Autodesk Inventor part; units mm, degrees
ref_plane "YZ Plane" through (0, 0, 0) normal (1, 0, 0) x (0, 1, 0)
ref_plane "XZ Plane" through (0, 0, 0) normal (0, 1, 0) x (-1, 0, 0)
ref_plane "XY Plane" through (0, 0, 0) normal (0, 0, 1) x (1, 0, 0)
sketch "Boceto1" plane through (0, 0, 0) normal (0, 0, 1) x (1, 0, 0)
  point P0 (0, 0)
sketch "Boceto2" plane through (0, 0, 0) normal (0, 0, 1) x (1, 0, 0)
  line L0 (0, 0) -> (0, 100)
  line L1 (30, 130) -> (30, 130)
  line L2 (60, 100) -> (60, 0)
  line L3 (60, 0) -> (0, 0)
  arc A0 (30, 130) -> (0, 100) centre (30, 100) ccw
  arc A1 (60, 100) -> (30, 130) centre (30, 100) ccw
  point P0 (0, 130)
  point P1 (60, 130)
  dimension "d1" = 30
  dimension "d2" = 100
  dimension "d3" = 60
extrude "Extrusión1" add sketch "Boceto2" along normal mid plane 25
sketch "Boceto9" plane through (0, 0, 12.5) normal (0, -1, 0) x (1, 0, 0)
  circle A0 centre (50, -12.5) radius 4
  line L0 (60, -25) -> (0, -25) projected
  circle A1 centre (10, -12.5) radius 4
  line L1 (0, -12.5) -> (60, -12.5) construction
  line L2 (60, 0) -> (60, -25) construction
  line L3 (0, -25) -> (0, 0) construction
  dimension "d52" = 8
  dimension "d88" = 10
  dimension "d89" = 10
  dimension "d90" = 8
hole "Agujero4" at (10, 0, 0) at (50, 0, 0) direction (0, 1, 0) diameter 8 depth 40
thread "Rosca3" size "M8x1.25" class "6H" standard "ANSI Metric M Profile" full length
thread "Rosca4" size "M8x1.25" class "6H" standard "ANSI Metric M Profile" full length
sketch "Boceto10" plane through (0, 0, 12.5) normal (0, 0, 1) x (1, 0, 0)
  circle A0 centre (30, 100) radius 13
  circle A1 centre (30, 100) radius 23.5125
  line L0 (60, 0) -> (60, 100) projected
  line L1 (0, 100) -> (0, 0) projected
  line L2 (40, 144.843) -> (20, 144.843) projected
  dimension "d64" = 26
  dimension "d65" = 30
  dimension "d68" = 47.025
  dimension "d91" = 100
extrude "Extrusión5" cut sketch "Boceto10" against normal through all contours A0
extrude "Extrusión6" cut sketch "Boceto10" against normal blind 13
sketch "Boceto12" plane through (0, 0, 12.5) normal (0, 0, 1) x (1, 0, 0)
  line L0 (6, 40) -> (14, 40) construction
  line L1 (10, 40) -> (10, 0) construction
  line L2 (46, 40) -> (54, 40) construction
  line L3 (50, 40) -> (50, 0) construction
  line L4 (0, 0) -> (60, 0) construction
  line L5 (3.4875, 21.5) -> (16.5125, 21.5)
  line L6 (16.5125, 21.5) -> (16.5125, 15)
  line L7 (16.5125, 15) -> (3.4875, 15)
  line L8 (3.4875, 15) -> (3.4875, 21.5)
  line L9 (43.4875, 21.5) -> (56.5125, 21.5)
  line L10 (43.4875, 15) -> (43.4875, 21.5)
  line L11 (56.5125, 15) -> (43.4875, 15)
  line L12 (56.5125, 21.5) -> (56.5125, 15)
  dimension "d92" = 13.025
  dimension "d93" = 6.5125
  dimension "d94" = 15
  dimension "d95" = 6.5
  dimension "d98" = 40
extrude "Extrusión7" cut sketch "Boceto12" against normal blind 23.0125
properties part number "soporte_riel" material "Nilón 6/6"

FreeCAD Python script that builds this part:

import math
import FreeCAD as App
import Part
import Sketcher

V = App.Vector


def add_polygon(sketch, points):
    """Adds a closed chain of lines whose ends are joined by coincident constraints."""
    first, n = sketch.GeometryCount, len(points)
    for a, b in zip(points, points[1:] + points[:1]):
        sketch.addGeometry(Part.LineSegment(App.Vector(*a, 0), App.Vector(*b, 0)), False)
    for i in range(n):
        sketch.addConstraint(Sketcher.Constraint("Coincident", first + i, 2, first + (i + 1) % n, 1))

doc = App.newDocument("Part")
params = doc.addObject("Spreadsheet::Sheet", "Params")
for row, (alias, value) in enumerate([
    ("sketch1_radius", "30 mm"),
    ("sketch1_height", "100 mm"),
    ("pad1_length", "25 mm"),
    ("sketch2_diameter", "8 mm"),
    ("hole_diameter", "8 mm"),
    ("hole_depth", "40 mm"),
    ("sketch3_diameter", "26 mm"),
    ("sketch4_diameter", "26 mm"),
    ("pocket2_length", "13 mm"),
    ("sketch5_height", "6.5 mm"),
    ("pocket3_length", "23.0125 mm"),
], start=1):
    params.set(f"A{row}", alias)
    params.set(f"B{row}", "=" + value)
    params.setAlias(f"B{row}", alias)

body = doc.addObject("PartDesign::Body", "Body")

# Sketch on XY plane
sketch1 = body.newObject("Sketcher::SketchObject", "Sketch")
sketch1.AttachmentSupport = (doc.getObject("XY_Plane"), [""])
sketch1.MapMode = "FlatFace"
sketch1.addGeometry(Part.LineSegment(V(0, 100, 0), V(0, 0, 0)), False)
sketch1.addGeometry(Part.LineSegment(V(0, 0, 0), V(60, 0, 0)), False)
sketch1.addGeometry(Part.LineSegment(V(60, 0, 0), V(60, 100, 0)), False)
sketch1.addGeometry(Part.ArcOfCircle(Part.Circle(V(30, 100, 0), V(0, 0, 1), 30), math.radians(0), math.radians(180)), False)
sketch1.addConstraint(Sketcher.Constraint("Coincident", 0, 2, 1, 1))
sketch1.addConstraint(Sketcher.Constraint("Coincident", 1, 2, 2, 1))
sketch1.addConstraint(Sketcher.Constraint("Tangent", 2, 2, 3, 1))
sketch1.addConstraint(Sketcher.Constraint("Tangent", 3, 2, 0, 1))
sketch1.addConstraint(Sketcher.Constraint("Vertical", 0))
sketch1.addConstraint(Sketcher.Constraint("Horizontal", 1))
sketch1.addConstraint(Sketcher.Constraint("Vertical", 2))
sketch1.addConstraint(Sketcher.Constraint("Coincident", 0, 2, -1, 1))
sketch1.addConstraint(Sketcher.Constraint("Radius", 3, 30.0))
sketch1.addConstraint(Sketcher.Constraint("DistanceY", 0, 2, 0, 1, 100.0))
sketch1.setExpression("Constraints[8]", "Params.sketch1_radius")
sketch1.setExpression("Constraints[9]", "Params.sketch1_height")
pad1 = body.newObject("PartDesign::Pad", "Pad")
pad1.Profile = sketch1
pad1.setExpression("Length", "Params.pad1_length")
pad1.Midplane = True

# Sketch on XZ plane
sketch2 = body.newObject("Sketcher::SketchObject", "Sketch001")
sketch2.AttachmentSupport = (doc.getObject("XZ_Plane"), [""])
sketch2.MapMode = "FlatFace"
sketch2.addGeometry(Part.Circle(V(10, 0, 0), V(0, 0, 1), 4), False)
sketch2.addGeometry(Part.Circle(V(50, 0, 0), V(0, 0, 1), 4), False)
sketch2.addConstraint(Sketcher.Constraint("Equal", 0, 1))
sketch2.addConstraint(Sketcher.Constraint("PointOnObject", 0, 3, -1))
sketch2.addConstraint(Sketcher.Constraint("PointOnObject", 1, 3, -1))
sketch2.addConstraint(Sketcher.Constraint("Diameter", 0, 8.0))
sketch2.addConstraint(Sketcher.Constraint("DistanceX", -1, 1, 0, 3, 10.0))
sketch2.addConstraint(Sketcher.Constraint("DistanceX", -1, 1, 1, 3, 50.0))
sketch2.setExpression("Constraints[3]", "Params.sketch2_diameter")
doc.recompute()
hole = body.newObject("PartDesign::Hole", "Hole")
hole.Profile = sketch2
hole.ThreadType = "None"
hole.setExpression("Diameter", "Params.hole_diameter")
hole.DepthType = "Dimension"
hole.setExpression("Depth", "Params.hole_depth")
hole.DrillPoint = "Flat"

# Sketch on XY plane
sketch3 = body.newObject("Sketcher::SketchObject", "Sketch002")
sketch3.AttachmentSupport = (doc.getObject("XY_Plane"), [""])
sketch3.MapMode = "FlatFace"
sketch3.AttachmentOffset = App.Placement(V(0, 0, 12.5), App.Rotation())
sketch3.addGeometry(Part.Circle(V(30, 100, 0), V(0, 0, 1), 13), False)
sketch3.addConstraint(Sketcher.Constraint("Diameter", 0, 26.0))
sketch3.addConstraint(Sketcher.Constraint("DistanceX", -1, 1, 0, 3, 30.0))
sketch3.addConstraint(Sketcher.Constraint("DistanceY", -1, 1, 0, 3, 100.0))
sketch3.setExpression("Constraints[0]", "Params.sketch3_diameter")
pocket1 = body.newObject("PartDesign::Pocket", "Pocket")
pocket1.Profile = sketch3
pocket1.Type = "ThroughAll"

# Sketch on XY plane
sketch4 = body.newObject("Sketcher::SketchObject", "Sketch003")
sketch4.AttachmentSupport = (doc.getObject("XY_Plane"), [""])
sketch4.MapMode = "FlatFace"
sketch4.AttachmentOffset = App.Placement(V(0, 0, 12.5), App.Rotation())
sketch4.addGeometry(Part.Circle(V(30, 100, 0), V(0, 0, 1), 24), False)
sketch4.addGeometry(Part.Circle(V(30, 100, 0), V(0, 0, 1), 13), False)
sketch4.addConstraint(Sketcher.Constraint("Coincident", 1, 3, 0, 3))
sketch4.addConstraint(Sketcher.Constraint("Diameter", 1, 26.0))
sketch4.addConstraint(Sketcher.Constraint("Diameter", 0, 47.025))
sketch4.addConstraint(Sketcher.Constraint("DistanceX", -1, 1, 0, 3, 30.0))
sketch4.addConstraint(Sketcher.Constraint("DistanceY", -1, 1, 0, 3, 100.0))
sketch4.setExpression("Constraints[1]", "Params.sketch4_diameter")
pocket2 = body.newObject("PartDesign::Pocket", "Pocket001")
pocket2.Profile = sketch4
pocket2.setExpression("Length", "Params.pocket2_length")

# Sketch on XY plane
sketch5 = body.newObject("Sketcher::SketchObject", "Sketch004")
sketch5.AttachmentSupport = (doc.getObject("XY_Plane"), [""])
sketch5.MapMode = "FlatFace"
sketch5.AttachmentOffset = App.Placement(V(0, 0, 12.5), App.Rotation())
add_polygon(sketch5, [(17, 22), (3, 22), (3, 15), (17, 15)])  # lines 0-3
add_polygon(sketch5, [(57, 22), (43, 22), (43, 15), (57, 15)])  # lines 4-7
sketch5.addConstraint(Sketcher.Constraint("Horizontal", 0))
sketch5.addConstraint(Sketcher.Constraint("Vertical", 1))
sketch5.addConstraint(Sketcher.Constraint("Horizontal", 2))
sketch5.addConstraint(Sketcher.Constraint("Vertical", 3))
sketch5.addConstraint(Sketcher.Constraint("Horizontal", 4))
sketch5.addConstraint(Sketcher.Constraint("Vertical", 5))
sketch5.addConstraint(Sketcher.Constraint("Horizontal", 6))
sketch5.addConstraint(Sketcher.Constraint("Vertical", 7))
sketch5.addConstraint(Sketcher.Constraint("Horizontal", 3, 2, 4, 2))
sketch5.addConstraint(Sketcher.Constraint("Horizontal", 2, 2, 5, 2))
sketch5.addConstraint(Sketcher.Constraint("Equal", 2, 4))
sketch5.addConstraint(Sketcher.Constraint("DistanceY", 1, 2, 1, 1, 6.5))
sketch5.addConstraint(Sketcher.Constraint("DistanceY", -1, 1, 1, 2, 15.0))
sketch5.addConstraint(Sketcher.Constraint("DistanceX", 0, 2, 4, 2, 40.0))
sketch5.addConstraint(Sketcher.Constraint("DistanceX", 0, 2, 0, 1, 13.025))
sketch5.addConstraint(Sketcher.Constraint("DistanceX", -1, 1, 0, 2, 3.4875))
sketch5.setExpression("Constraints[19]", "Params.sketch5_height")
pocket3 = body.newObject("PartDesign::Pocket", "Pocket002")
pocket3.Profile = sketch5
pocket3.setExpression("Length", "Params.pocket3_length")

doc.recompute()
